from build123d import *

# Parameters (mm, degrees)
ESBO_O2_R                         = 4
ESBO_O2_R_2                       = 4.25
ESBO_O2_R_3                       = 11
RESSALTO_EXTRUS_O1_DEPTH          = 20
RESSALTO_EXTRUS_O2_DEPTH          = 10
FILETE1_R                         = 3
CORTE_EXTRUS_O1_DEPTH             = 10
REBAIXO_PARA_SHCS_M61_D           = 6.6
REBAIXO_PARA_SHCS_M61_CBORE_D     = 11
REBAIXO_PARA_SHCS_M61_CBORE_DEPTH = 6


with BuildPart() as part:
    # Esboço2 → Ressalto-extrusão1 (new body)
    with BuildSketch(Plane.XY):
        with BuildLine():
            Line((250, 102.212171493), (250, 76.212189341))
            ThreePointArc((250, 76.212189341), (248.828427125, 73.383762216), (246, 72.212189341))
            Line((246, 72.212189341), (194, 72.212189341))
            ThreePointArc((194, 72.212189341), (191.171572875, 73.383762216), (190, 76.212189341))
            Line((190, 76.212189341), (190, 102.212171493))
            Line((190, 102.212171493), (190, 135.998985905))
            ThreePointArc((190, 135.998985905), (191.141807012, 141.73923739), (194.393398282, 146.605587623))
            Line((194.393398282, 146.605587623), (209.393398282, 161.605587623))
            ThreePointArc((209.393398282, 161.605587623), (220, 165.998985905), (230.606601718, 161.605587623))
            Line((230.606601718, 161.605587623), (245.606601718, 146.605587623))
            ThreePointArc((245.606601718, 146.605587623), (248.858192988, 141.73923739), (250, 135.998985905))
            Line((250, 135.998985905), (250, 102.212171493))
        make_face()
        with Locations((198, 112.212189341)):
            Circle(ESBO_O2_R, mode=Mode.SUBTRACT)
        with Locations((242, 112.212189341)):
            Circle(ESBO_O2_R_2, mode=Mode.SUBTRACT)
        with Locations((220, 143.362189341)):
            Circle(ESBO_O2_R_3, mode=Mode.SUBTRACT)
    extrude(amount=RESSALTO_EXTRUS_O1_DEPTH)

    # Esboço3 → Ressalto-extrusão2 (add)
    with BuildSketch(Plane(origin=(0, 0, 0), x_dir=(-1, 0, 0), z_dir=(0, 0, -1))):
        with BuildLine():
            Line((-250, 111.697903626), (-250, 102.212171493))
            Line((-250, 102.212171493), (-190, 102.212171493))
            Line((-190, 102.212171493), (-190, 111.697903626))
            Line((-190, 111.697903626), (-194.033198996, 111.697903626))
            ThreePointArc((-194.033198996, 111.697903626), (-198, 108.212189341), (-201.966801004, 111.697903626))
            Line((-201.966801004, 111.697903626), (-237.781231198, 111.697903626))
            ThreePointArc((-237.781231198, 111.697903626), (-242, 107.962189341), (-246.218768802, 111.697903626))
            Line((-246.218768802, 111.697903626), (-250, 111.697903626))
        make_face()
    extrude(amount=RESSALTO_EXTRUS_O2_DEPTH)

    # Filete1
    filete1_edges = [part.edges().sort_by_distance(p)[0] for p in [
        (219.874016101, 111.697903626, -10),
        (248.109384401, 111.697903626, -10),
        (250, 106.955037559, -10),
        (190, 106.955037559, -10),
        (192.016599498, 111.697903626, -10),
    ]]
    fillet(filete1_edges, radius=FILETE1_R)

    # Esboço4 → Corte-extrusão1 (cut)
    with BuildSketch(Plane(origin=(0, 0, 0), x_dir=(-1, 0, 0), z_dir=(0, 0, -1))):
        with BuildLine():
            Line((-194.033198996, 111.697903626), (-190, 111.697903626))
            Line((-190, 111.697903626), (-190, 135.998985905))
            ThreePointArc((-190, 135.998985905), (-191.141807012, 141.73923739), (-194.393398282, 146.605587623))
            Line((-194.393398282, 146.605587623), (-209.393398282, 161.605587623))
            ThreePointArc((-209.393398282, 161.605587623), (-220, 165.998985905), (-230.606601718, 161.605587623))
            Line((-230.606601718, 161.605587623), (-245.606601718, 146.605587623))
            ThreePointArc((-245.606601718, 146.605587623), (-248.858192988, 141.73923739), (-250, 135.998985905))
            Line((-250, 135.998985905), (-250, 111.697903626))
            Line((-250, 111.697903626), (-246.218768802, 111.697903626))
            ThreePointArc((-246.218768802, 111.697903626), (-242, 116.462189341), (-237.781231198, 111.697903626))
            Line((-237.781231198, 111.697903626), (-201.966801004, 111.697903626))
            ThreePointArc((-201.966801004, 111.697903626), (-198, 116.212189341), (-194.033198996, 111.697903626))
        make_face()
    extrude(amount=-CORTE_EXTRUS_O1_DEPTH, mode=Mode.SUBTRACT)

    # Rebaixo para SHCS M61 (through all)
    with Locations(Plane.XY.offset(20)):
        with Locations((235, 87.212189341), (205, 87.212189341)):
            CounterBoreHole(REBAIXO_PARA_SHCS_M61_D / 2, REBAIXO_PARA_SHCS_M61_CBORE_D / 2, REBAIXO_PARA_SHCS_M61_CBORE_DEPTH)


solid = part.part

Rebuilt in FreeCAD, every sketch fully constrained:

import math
import FreeCAD as App
import Part
import Sketcher


def edges_at(feature, points):
    """Names of the edges that pass closest to the given points."""
    edges = feature.Shape.Edges
    near = lambda p: min(range(len(edges)), key=lambda i: edges[i].distToShape(Part.Vertex(*p))[0])
    return sorted({f"Edge{near(p) + 1}" for p in points})

doc = App.newDocument("Part")
params = doc.addObject("Spreadsheet::Sheet", "Params")
for row, (alias, value) in enumerate([
    ("sketch1_diameter", "8 mm"),
    ("sketch1_diameter2", "22 mm"),
    ("sketch1_radius", "15 mm"),
    ("sketch1_diameter3", "8.5 mm"),
    ("sketch1_width", "52 mm"),
    ("pad1_length", "20 mm"),
    ("sketch2_radius", "4 mm"),
    ("sketch2_width", "60 mm"),
    ("sketch2_radius2", "4.25 mm"),
    ("pad2_length", "10 mm"),
    ("fillet_radius", "3 mm"),
    ("sketch3_radius", "15 mm"),
    ("sketch3_radius2", "4 mm"),
    ("sketch3_radius3", "4.25 mm"),
    ("pocket1_length", "10 mm"),
    ("sketch4_diameter", "6.6 mm"),
    ("hole_diameter", "6.6 mm"),
    ("hole_cbore_diameter", "11 mm"),
    ("hole_cbore_depth", "6 mm"),
], start=1):
    params.set(f"A{row}", alias)
    params.set(f"B{row}", "=" + value)
    params.setAlias(f"B{row}", alias)

body = doc.addObject("PartDesign::Body", "Body")

# Sketch on XY plane
sketch1 = body.newObject("Sketcher::SketchObject", "Sketch")
sketch1.AttachmentSupport = (doc.getObject("XY_Plane"), [""])
sketch1.MapMode = "FlatFace"
sketch1.addGeometry(Part.ArcOfCircle(Part.Circle(App.Vector(246, 76.212189, 0), App.Vector(0, 0, 1), 4), math.radians(-90), math.radians(0)), False)
sketch1.addGeometry(Part.LineSegment(App.Vector(250, 76.212189, 0), App.Vector(250, 135.998986, 0)), False)
sketch1.addGeometry(Part.ArcOfCircle(Part.Circle(App.Vector(235, 135.998986, 0), App.Vector(0, 0, 1), 15), math.radians(0), math.radians(45)), False)
sketch1.addGeometry(Part.LineSegment(App.Vector(245.606602, 146.605588, 0), App.Vector(230.606602, 161.605588, 0)), False)
sketch1.addGeometry(Part.ArcOfCircle(Part.Circle(App.Vector(220, 150.998986, 0), App.Vector(0, 0, 1), 15), math.radians(45), math.radians(135)), False)
sketch1.addGeometry(Part.LineSegment(App.Vector(209.393398, 161.605588, 0), App.Vector(194.393398, 146.605588, 0)), False)
sketch1.addGeometry(Part.ArcOfCircle(Part.Circle(App.Vector(205, 135.998986, 0), App.Vector(0, 0, 1), 15), math.radians(135), math.radians(180)), False)
sketch1.addGeometry(Part.LineSegment(App.Vector(190, 135.998986, 0), App.Vector(190, 76.212189, 0)), False)
sketch1.addGeometry(Part.ArcOfCircle(Part.Circle(App.Vector(194, 76.212189, 0), App.Vector(0, 0, 1), 4), math.radians(180), math.radians(270)), False)
sketch1.addGeometry(Part.LineSegment(App.Vector(194, 72.212189, 0), App.Vector(246, 72.212189, 0)), False)
sketch1.addGeometry(Part.Circle(App.Vector(242, 112.212189, 0), App.Vector(0, 0, 1), 4.25), False)
sketch1.addGeometry(Part.Circle(App.Vector(198, 112.212189, 0), App.Vector(0, 0, 1), 4), False)
sketch1.addGeometry(Part.Circle(App.Vector(220, 143.362189, 0), App.Vector(0, 0, 1), 11), False)
sketch1.addConstraint(Sketcher.Constraint("Tangent", 0, 2, 1, 1))
sketch1.addConstraint(Sketcher.Constraint("Tangent", 1, 2, 2, 1))
sketch1.addConstraint(Sketcher.Constraint("Tangent", 2, 2, 3, 1))
sketch1.addConstraint(Sketcher.Constraint("Tangent", 3, 2, 4, 1))
sketch1.addConstraint(Sketcher.Constraint("Tangent", 4, 2, 5, 1))
sketch1.addConstraint(Sketcher.Constraint("Tangent", 5, 2, 6, 1))
sketch1.addConstraint(Sketcher.Constraint("Tangent", 6, 2, 7, 1))
sketch1.addConstraint(Sketcher.Constraint("Tangent", 7, 2, 8, 1))
sketch1.addConstraint(Sketcher.Constraint("Tangent", 8, 2, 9, 1))
sketch1.addConstraint(Sketcher.Constraint("Tangent", 9, 2, 0, 1))
sketch1.addConstraint(Sketcher.Constraint("Vertical", 1))
sketch1.addConstraint(Sketcher.Constraint("Vertical", 7))
sketch1.addConstraint(Sketcher.Constraint("Horizontal", 9))
sketch1.addConstraint(Sketcher.Constraint("Equal", 2, 4))
sketch1.addConstraint(Sketcher.Constraint("Equal", 4, 6))
sketch1.addConstraint(Sketcher.Constraint("Equal", 0, 8))
sketch1.addConstraint(Sketcher.Constraint("Equal", 8, 11))
sketch1.addConstraint(Sketcher.Constraint("Perpendicular", 3, 5))
sketch1.addConstraint(Sketcher.Constraint("Horizontal", 2, 3, 6, 3))
sketch1.addConstraint(Sketcher.Constraint("Horizontal", 10, 3, 11, 3))
sketch1.addConstraint(Sketcher.Constraint("Horizontal", 3, 2, 4, 2))
sketch1.addConstraint(Sketcher.Constraint("Vertical", 4, 3, 12, 3))
sketch1.addConstraint(Sketcher.Constraint("Diameter", 11, 8.0))
sketch1.addConstraint(Sketcher.Constraint("Diameter", 12, 22.0))
sketch1.addConstraint(Sketcher.Constraint("Radius", 2, 15.0))
sketch1.addConstraint(Sketcher.Constraint("Diameter", 10, 8.5))
sketch1.addConstraint(Sketcher.Constraint("DistanceX", 9, 1, 9, 2, 52.0))
sketch1.addConstraint(Sketcher.Constraint("DistanceX", -1, 1, 0, 3, 246.0))
sketch1.addConstraint(Sketcher.Constraint("DistanceX", -1, 1, 10, 3, 242.0))
sketch1.addConstraint(Sketcher.Constraint("DistanceX", -1, 1, 11, 3, 198.0))
sketch1.addConstraint(Sketcher.Constraint("DistanceY", 0, 3, 10, 3, 36.0))
sketch1.addConstraint(Sketcher.Constraint("DistanceY", 10, 3, 12, 3, 31.15))
sketch1.addConstraint(Sketcher.Constraint("DistanceY", 12, 3, 2, 2, 3.243398))
sketch1.addConstraint(Sketcher.Constraint("DistanceY", -1, 1, 0, 3, 76.212189))
sketch1.setExpression("Constraints[22]", "Params.sketch1_diameter")
sketch1.setExpression("Constraints[23]", "Params.sketch1_diameter2")
sketch1.setExpression("Constraints[24]", "Params.sketch1_radius")
sketch1.setExpression("Constraints[25]", "Params.sketch1_diameter3")
sketch1.setExpression("Constraints[26]", "Params.sketch1_width")
pad1 = body.newObject("PartDesign::Pad", "Pad")
pad1.Profile = sketch1
pad1.setExpression("Length", "Params.pad1_length")

# Sketch on XY plane
sketch2 = body.newObject("Sketcher::SketchObject", "Sketch001")
sketch2.AttachmentSupport = (doc.getObject("XY_Plane"), [""])
sketch2.MapMode = "FlatFace"
sketch2.addGeometry(Part.LineSegment(App.Vector(250, 111.697904, 0), App.Vector(250, 102.212171, 0)), False)
sketch2.addGeometry(Part.LineSegment(App.Vector(250, 102.212171, 0), App.Vector(190, 102.212171, 0)), False)
sketch2.addGeometry(Part.LineSegment(App.Vector(190, 102.212171, 0), App.Vector(190, 111.697904, 0)), False)
sketch2.addGeometry(Part.LineSegment(App.Vector(190, 111.697904, 0), App.Vector(194.033199, 111.697904, 0)), False)
sketch2.addGeometry(Part.ArcOfCircle(Part.Circle(App.Vector(198, 112.212189, 0), App.Vector(0, 0, 1), 4), math.radians(-172.612952), math.radians(-7.387048)), False)
sketch2.addGeometry(Part.LineSegment(App.Vector(201.966801, 111.697904, 0), App.Vector(237.781231, 111.697904, 0)), False)
sketch2.addGeometry(Part.ArcOfCircle(Part.Circle(App.Vector(242, 112.212189, 0), App.Vector(0, 0, 1), 4.25), math.radians(-173.049696), math.radians(-6.950304)), False)
sketch2.addGeometry(Part.LineSegment(App.Vector(246.218769, 111.697904, 0), App.Vector(250, 111.697904, 0)), False)
sketch2.addConstraint(Sketcher.Constraint("Coincident", 0, 2, 1, 1))
sketch2.addConstraint(Sketcher.Constraint("Coincident", 1, 2, 2, 1))
sketch2.addConstraint(Sketcher.Constraint("Coincident", 2, 2, 3, 1))
sketch2.addConstraint(Sketcher.Constraint("Coincident", 3, 2, 4, 1))
sketch2.addConstraint(Sketcher.Constraint("Coincident", 4, 2, 5, 1))
sketch2.addConstraint(Sketcher.Constraint("Coincident", 5, 2, 6, 1))
sketch2.addConstraint(Sketcher.Constraint("Coincident", 6, 2, 7, 1))
sketch2.addConstraint(Sketcher.Constraint("Coincident", 7, 2, 0, 1))
sketch2.addConstraint(Sketcher.Constraint("Vertical", 0))
sketch2.addConstraint(Sketcher.Constraint("Horizontal", 1))
sketch2.addConstraint(Sketcher.Constraint("Vertical", 2))
sketch2.addConstraint(Sketcher.Constraint("Horizontal", 3))
sketch2.addConstraint(Sketcher.Constraint("Horizontal", 5))
sketch2.addConstraint(Sketcher.Constraint("Horizontal", 7))
sketch2.addConstraint(Sketcher.Constraint("Horizontal", 4, 3, 6, 3))
sketch2.addConstraint(Sketcher.Constraint("Horizontal", 3, 2, 4, 2))
sketch2.addConstraint(Sketcher.Constraint("Horizontal", 5, 2, 6, 2))
sketch2.addConstraint(Sketcher.Constraint("Radius", 4, 4.0))
sketch2.addConstraint(Sketcher.Constraint("DistanceX", 1, 2, 1, 1, 60.0))
sketch2.addConstraint(Sketcher.Constraint("Radius", 6, 4.25))
sketch2.addConstraint(Sketcher.Constraint("DistanceX", -1, 1, 4, 3, 198.0))
sketch2.addConstraint(Sketcher.Constraint("DistanceX", -1, 1, 6, 3, 242.0))
sketch2.addConstraint(Sketcher.Constraint("DistanceX", -1, 1, 0, 2, 250.0))
sketch2.addConstraint(Sketcher.Constraint("DistanceX", 3, 1, 3, 2, 4.033199))
sketch2.addConstraint(Sketcher.Constraint("DistanceY", 0, 2, 0, 1, 9.485732))
sketch2.addConstraint(Sketcher.Constraint("DistanceY", -1, 1, 4, 3, 112.212189))
sketch2.setExpression("Constraints[17]", "Params.sketch2_radius")
sketch2.setExpression("Constraints[18]", "Params.sketch2_width")
sketch2.setExpression("Constraints[19]", "Params.sketch2_radius2")
pad2 = body.newObject("PartDesign::Pad", "Pad001")
pad2.Profile = sketch2
pad2.setExpression("Length", "Params.pad2_length")
pad2.Reversed = True
doc.recompute()

fillet = body.newObject("PartDesign::Fillet", "Fillet")
fillet.Base = (pad2, edges_at(pad2, [
    (219.874, 111.698, -10),
    (248.109, 111.698, -10),
    (250, 106.955, -10),
    (190, 106.955, -10),
    (192.017, 111.698, -10),
]))
fillet.setExpression("Radius", "Params.fillet_radius")

# Sketch on XY plane
sketch3 = body.newObject("Sketcher::SketchObject", "Sketch002")
sketch3.AttachmentSupport = (doc.getObject("XY_Plane"), [""])
sketch3.MapMode = "FlatFace"
sketch3.addGeometry(Part.LineSegment(App.Vector(194.033199, 111.697904, 0), App.Vector(190, 111.697904, 0)), False)
sketch3.addGeometry(Part.LineSegment(App.Vector(190, 111.697904, 0), App.Vector(190, 135.998986, 0)), False)
sketch3.addGeometry(Part.ArcOfCircle(Part.Circle(App.Vector(205, 135.998986, 0), App.Vector(0, 0, 1), 15), math.radians(135), math.radians(180)), False)
sketch3.addGeometry(Part.LineSegment(App.Vector(194.393398, 146.605588, 0), App.Vector(209.393398, 161.605588, 0)), False)
sketch3.addGeometry(Part.ArcOfCircle(Part.Circle(App.Vector(220, 150.998986, 0), App.Vector(0, 0, 1), 15), math.radians(45), math.radians(135)), False)
sketch3.addGeometry(Part.LineSegment(App.Vector(230.606602, 161.605588, 0), App.Vector(245.606602, 146.605588, 0)), False)
sketch3.addGeometry(Part.ArcOfCircle(Part.Circle(App.Vector(235, 135.998986, 0), App.Vector(0, 0, 1), 15), math.radians(0), math.radians(45)), False)
sketch3.addGeometry(Part.LineSegment(App.Vector(250, 135.998986, 0), App.Vector(250, 111.697904, 0)), False)
sketch3.addGeometry(Part.LineSegment(App.Vector(250, 111.697904, 0), App.Vector(246.218769, 111.697904, 0)), False)
sketch3.addGeometry(Part.ArcOfCircle(Part.Circle(App.Vector(242, 112.212189, 0), App.Vector(0, 0, 1), 4.25), math.radians(-6.950304), math.radians(186.950304)), False)
sketch3.addGeometry(Part.LineSegment(App.Vector(237.781231, 111.697904, 0), App.Vector(201.966801, 111.697904, 0)), False)
sketch3.addGeometry(Part.ArcOfCircle(Part.Circle(App.Vector(198, 112.212189, 0), App.Vector(0, 0, 1), 4), math.radians(-7.387048), math.radians(187.387048)), False)
sketch3.addConstraint(Sketcher.Constraint("Coincident", 0, 2, 1, 1))
sketch3.addConstraint(Sketcher.Constraint("Tangent", 1, 2, 2, 2))
sketch3.addConstraint(Sketcher.Constraint("Tangent", 2, 1, 3, 1))
sketch3.addConstraint(Sketcher.Constraint("Tangent", 3, 2, 4, 2))
sketch3.addConstraint(Sketcher.Constraint("Tangent", 4, 1, 5, 1))
sketch3.addConstraint(Sketcher.Constraint("Tangent", 5, 2, 6, 2))
sketch3.addConstraint(Sketcher.Constraint("Tangent", 6, 1, 7, 1))
sketch3.addConstraint(Sketcher.Constraint("Coincident", 7, 2, 8, 1))
sketch3.addConstraint(Sketcher.Constraint("Coincident", 8, 2, 9, 1))
sketch3.addConstraint(Sketcher.Constraint("Coincident", 9, 2, 10, 1))
sketch3.addConstraint(Sketcher.Constraint("Coincident", 10, 2, 11, 1))
sketch3.addConstraint(Sketcher.Constraint("Coincident", 11, 2, 0, 1))
sketch3.addConstraint(Sketcher.Constraint("Horizontal", 0))
sketch3.addConstraint(Sketcher.Constraint("Vertical", 1))
sketch3.addConstraint(Sketcher.Constraint("Vertical", 7))
sketch3.addConstraint(Sketcher.Constraint("Horizontal", 8))
sketch3.addConstraint(Sketcher.Constraint("Horizontal", 10))
sketch3.addConstraint(Sketcher.Constraint("Equal", 2, 4))
sketch3.addConstraint(Sketcher.Constraint("Equal", 4, 6))
sketch3.addConstraint(Sketcher.Constraint("Perpendicular", 3, 5))
sketch3.addConstraint(Sketcher.Constraint("Horizontal", 2, 3, 6, 3))
sketch3.addConstraint(Sketcher.Constraint("Horizontal", 9, 3, 11, 3))
sketch3.addConstraint(Sketcher.Constraint("Horizontal", 3, 2, 4, 1))
sketch3.addConstraint(Sketcher.Constraint("Horizontal", 0, 2, 7, 2))
sketch3.addConstraint(Sketcher.Constraint("Horizontal", 8, 2, 9, 2))
sketch3.addConstraint(Sketcher.Constraint("Radius", 2, 15.0))
sketch3.addConstraint(Sketcher.Constraint("Radius", 11, 4.0))
sketch3.addConstraint(Sketcher.Constraint("Radius", 9, 4.25))
sketch3.addConstraint(Sketcher.Constraint("DistanceX", -1, 1, 2, 3, 205.0))
sketch3.addConstraint(Sketcher.Constraint("DistanceX", -1, 1, 4, 3, 220.0))
sketch3.addConstraint(Sketcher.Constraint("DistanceX", -1, 1, 9, 3, 242.0))
sketch3.addConstraint(Sketcher.Constraint("DistanceX", -1, 1, 11, 3, 198.0))
sketch3.addConstraint(Sketcher.Constraint("DistanceX", 0, 2, 0, 1, 4.033199))
sketch3.addConstraint(Sketcher.Constraint("DistanceY", 11, 3, 2, 1, 34.393398))
sketch3.addConstraint(Sketcher.Constraint("DistanceY", -1, 1, 9, 3, 112.212189))
sketch3.setExpression("Constraints[25]", "Params.sketch3_radius")
sketch3.setExpression("Constraints[26]", "Params.sketch3_radius2")
sketch3.setExpression("Constraints[27]", "Params.sketch3_radius3")
pocket1 = body.newObject("PartDesign::Pocket", "Pocket")
pocket1.Profile = sketch3
pocket1.setExpression("Length", "Params.pocket1_length")
pocket1.Reversed = True

# Sketch on XY plane
sketch4 = body.newObject("Sketcher::SketchObject", "Sketch003")
sketch4.AttachmentSupport = (doc.getObject("XY_Plane"), [""])
sketch4.MapMode = "FlatFace"
sketch4.AttachmentOffset = App.Placement(App.Vector(0, 0, 20), App.Rotation())
sketch4.addGeometry(Part.Circle(App.Vector(235, 87.212189, 0), App.Vector(0, 0, 1), 3.3), False)
sketch4.addGeometry(Part.Circle(App.Vector(205, 87.212189, 0), App.Vector(0, 0, 1), 3.3), False)
sketch4.addConstraint(Sketcher.Constraint("Equal", 0, 1))
sketch4.addConstraint(Sketcher.Constraint("Horizontal", 0, 3, 1, 3))
sketch4.addConstraint(Sketcher.Constraint("Diameter", 0, 6.6))
sketch4.addConstraint(Sketcher.Constraint("DistanceX", -1, 1, 0, 3, 235.0))
sketch4.addConstraint(Sketcher.Constraint("DistanceX", -1, 1, 1, 3, 205.0))
sketch4.addConstraint(Sketcher.Constraint("DistanceY", -1, 1, 0, 3, 87.212189))
sketch4.setExpression("Constraints[2]", "Params.sketch4_diameter")
doc.recompute()
hole = body.newObject("PartDesign::Hole", "Hole")
hole.Profile = sketch4
hole.ThreadType = "None"
hole.setExpression("Diameter", "Params.hole_diameter")
hole.DepthType = "ThroughAll"
hole.HoleCutType = "Counterbore"
hole.setExpression("HoleCutDiameter", "Params.hole_cbore_diameter")
hole.setExpression("HoleCutDepth", "Params.hole_cbore_depth")

doc.recompute()
